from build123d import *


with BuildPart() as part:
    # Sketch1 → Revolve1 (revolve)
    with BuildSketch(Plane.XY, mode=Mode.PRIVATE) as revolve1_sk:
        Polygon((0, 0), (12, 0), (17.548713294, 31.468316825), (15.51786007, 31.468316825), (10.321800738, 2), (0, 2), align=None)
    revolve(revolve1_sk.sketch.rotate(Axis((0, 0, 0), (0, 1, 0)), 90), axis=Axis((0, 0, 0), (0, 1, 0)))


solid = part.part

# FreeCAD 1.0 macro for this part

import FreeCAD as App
import Part
import Sketcher
Q = App.Units.Quantity


def add_polygon(sketch, points):
    """Adds a closed chain of lines whose ends are joined by coincident constraints."""
    first, n = sketch.GeometryCount, len(points)
    for a, b in zip(points, points[1:] + points[:1]):
        sketch.addGeometry(Part.LineSegment(App.Vector(*a, 0), App.Vector(*b, 0)), False)
    for i in range(n):
        sketch.addConstraint(Sketcher.Constraint("Coincident", first + i, 2, first + (i + 1) % n, 1))

doc = App.newDocument("Part")
body = doc.addObject("PartDesign::Body", "Body")

# Sketch on XY plane
sketch1 = doc.addObject("Sketcher::SketchObject", "Sketch")
body.addObject(sketch1)
sketch1.AttachmentSupport = (doc.XY_Plane, [""])
sketch1.MapMode = "FlatFace"
add_polygon(sketch1, [(0, 0), (12, 0), (17.548713, 31.468317), (15.51786, 31.468317), (10.321801, 2), (0, 2)])  # lines 0-5
sketch1.addConstraint([
    Sketcher.Constraint("Horizontal", 0),
    Sketcher.Constraint("Horizontal", 2),
    Sketcher.Constraint("Horizontal", 4),
    Sketcher.Constraint("Vertical", 5),
    Sketcher.Constraint("Coincident", 5, 2, -1, 1),
    Sketcher.Constraint("Parallel", 1, 3),
    Sketcher.Constraint("DistanceX", 0, 1, 0, 2, 12.0),
    Sketcher.Constraint("DistanceY", 5, 2, 5, 1, 2.0),
    Sketcher.Constraint("Angle", 1, Q("80 deg")),
    Sketcher.Constraint("DistanceX", 4, 2, 4, 1, 10.321801),
    Sketcher.Constraint("DistanceX", -1, 1, 2, 2, 15.51786),
])
revolution = doc.addObject("PartDesign::Revolution", "Revolution")
body.addObject(revolution)
revolution.Profile = sketch1
revolution.ReferenceAxis = (sketch1, ["V_Axis"])
revolution.Angle = 360

doc.recompute()
